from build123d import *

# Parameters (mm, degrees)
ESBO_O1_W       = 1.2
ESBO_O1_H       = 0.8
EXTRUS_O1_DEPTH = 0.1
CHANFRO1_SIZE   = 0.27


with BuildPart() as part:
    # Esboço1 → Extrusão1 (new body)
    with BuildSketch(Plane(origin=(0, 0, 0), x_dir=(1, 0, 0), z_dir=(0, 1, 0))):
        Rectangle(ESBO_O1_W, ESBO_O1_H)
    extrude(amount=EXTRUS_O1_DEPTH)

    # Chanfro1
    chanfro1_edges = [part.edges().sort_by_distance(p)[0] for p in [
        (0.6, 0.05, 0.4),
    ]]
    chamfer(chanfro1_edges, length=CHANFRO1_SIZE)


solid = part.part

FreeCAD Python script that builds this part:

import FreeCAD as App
import Part
import Sketcher


def edges_at(feature, points):
    """Names of the edges that pass closest to the given points."""
    edges = feature.Shape.Edges
    near = lambda p: min(range(len(edges)), key=lambda i: edges[i].distToShape(Part.Vertex(*p))[0])
    return sorted({f"Edge{near(p) + 1}" for p in points})


def add_polygon(sketch, points):
    """Adds a closed chain of lines whose ends are joined by coincident constraints."""
    first, n = sketch.GeometryCount, len(points)
    for a, b in zip(points, points[1:] + points[:1]):
        sketch.addGeometry(Part.LineSegment(App.Vector(*a, 0), App.Vector(*b, 0)), False)
    for i in range(n):
        sketch.addConstraint(Sketcher.Constraint("Coincident", first + i, 2, first + (i + 1) % n, 1))

doc = App.newDocument("Part")
body = doc.addObject("PartDesign::Body", "Body")

sketch1 = doc.addObject("Sketcher::SketchObject", "Sketch")
body.addObject(sketch1)
sketch1.AttachmentSupport = (doc.XZ_Plane, [""])
sketch1.MapMode = "FlatFace"
add_polygon(sketch1, [(-0.6, -0.4), (-0.6, 0.4), (0.6, 0.4), (0.6, -0.4)])
sketch1.addConstraint([
    Sketcher.Constraint("Vertical", 0),
    Sketcher.Constraint("Horizontal", 1),
    Sketcher.Constraint("Vertical", 2),
    Sketcher.Constraint("Horizontal", 3),
    Sketcher.Constraint("Symmetric", 0, 2, 2, 2, -1, 1),
    Sketcher.Constraint("DistanceX", 1, 1, 1, 2, 1.2),
    Sketcher.Constraint("DistanceY", 0, 1, 0, 2, 0.8),
])
pad1 = doc.addObject("PartDesign::Pad", "Pad")
body.addObject(pad1)
pad1.Profile = sketch1
pad1.Length = 0.1
pad1.Reversed = True
doc.recompute()

chamfer = doc.addObject("PartDesign::Chamfer", "Chamfer")
body.addObject(chamfer)
chamfer.Base = (pad1, edges_at(pad1, [(0.6, 0.05, 0.4)]))
chamfer.Size = 0.27

doc.recompute()
